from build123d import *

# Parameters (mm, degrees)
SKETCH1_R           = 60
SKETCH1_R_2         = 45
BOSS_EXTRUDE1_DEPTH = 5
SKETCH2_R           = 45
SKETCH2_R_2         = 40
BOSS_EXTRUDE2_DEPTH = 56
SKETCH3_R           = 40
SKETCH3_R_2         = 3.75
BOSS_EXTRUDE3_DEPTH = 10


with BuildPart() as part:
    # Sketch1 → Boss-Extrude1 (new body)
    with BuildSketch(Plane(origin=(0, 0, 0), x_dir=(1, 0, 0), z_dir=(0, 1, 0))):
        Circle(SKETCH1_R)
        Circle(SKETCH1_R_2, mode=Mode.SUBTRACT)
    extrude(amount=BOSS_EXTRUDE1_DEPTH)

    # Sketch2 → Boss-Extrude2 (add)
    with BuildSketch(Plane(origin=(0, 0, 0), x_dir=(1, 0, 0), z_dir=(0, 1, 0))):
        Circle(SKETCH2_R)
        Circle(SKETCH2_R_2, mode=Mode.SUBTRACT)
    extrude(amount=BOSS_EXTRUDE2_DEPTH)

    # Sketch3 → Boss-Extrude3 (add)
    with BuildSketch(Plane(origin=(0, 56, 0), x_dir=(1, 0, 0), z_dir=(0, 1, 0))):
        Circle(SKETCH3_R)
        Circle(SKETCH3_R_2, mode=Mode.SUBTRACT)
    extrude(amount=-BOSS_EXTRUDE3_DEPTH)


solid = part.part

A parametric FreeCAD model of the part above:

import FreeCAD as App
import Part
import Sketcher
from FreeCAD import Vector

doc = App.newDocument("Part")
body = doc.addObject("PartDesign::Body", "Body")

# Sketch on XZ plane
sketch1 = doc.addObject("Sketcher::SketchObject", "Sketch")
body.addObject(sketch1)
sketch1.AttachmentSupport = (doc.XZ_Plane, [""])
sketch1.MapMode = "FlatFace"
sketch1.addGeometry([
    Part.Circle(Vector(0, 0, 0), Vector(0, 0, 1), 60),
    Part.Circle(Vector(0, 0, 0), Vector(0, 0, 1), 45),
], False)
sketch1.addConstraint([
    Sketcher.Constraint("Coincident", 0, 3, -1, 1),
    Sketcher.Constraint("Coincident", 1, 3, -1, 1),
    Sketcher.Constraint("Diameter", 0, 120.0),
    Sketcher.Constraint("Diameter", 1, 90.0),
])
pad1 = doc.addObject("PartDesign::Pad", "Pad")
body.addObject(pad1)
pad1.Profile = sketch1
pad1.Length = 5
pad1.Reversed = True

# Sketch on XZ plane
sketch2 = doc.addObject("Sketcher::SketchObject", "Sketch001")
body.addObject(sketch2)
sketch2.AttachmentSupport = (doc.XZ_Plane, [""])
sketch2.MapMode = "FlatFace"
sketch2.addGeometry([
    Part.Circle(Vector(0, 0, 0), Vector(0, 0, 1), 45),
    Part.Circle(Vector(0, 0, 0), Vector(0, 0, 1), 40),
], False)
sketch2.addConstraint([
    Sketcher.Constraint("Coincident", 0, 3, -1, 1),
    Sketcher.Constraint("Coincident", 1, 3, -1, 1),
    Sketcher.Constraint("Diameter", 0, 90.0),
    Sketcher.Constraint("Diameter", 1, 80.0),
])
pad2 = doc.addObject("PartDesign::Pad", "Pad001")
body.addObject(pad2)
pad2.Profile = sketch2
pad2.Length = 56
pad2.Reversed = True

# Sketch on XZ plane
sketch3 = doc.addObject("Sketcher::SketchObject", "Sketch002")
body.addObject(sketch3)
sketch3.AttachmentSupport = (doc.XZ_Plane, [""])
sketch3.MapMode = "FlatFace"
sketch3.AttachmentOffset = App.Placement(Vector(0, 0, -56), App.Rotation())
sketch3.addGeometry([
    Part.Circle(Vector(0, 0, 0), Vector(0, 0, 1), 40),
    Part.Circle(Vector(0, 0, 0), Vector(0, 0, 1), 3.75),
], False)
sketch3.addConstraint([
    Sketcher.Constraint("Coincident", 0, 3, -1, 1),
    Sketcher.Constraint("Coincident", 1, 3, -1, 1),
    Sketcher.Constraint("Diameter", 0, 80.0),
    Sketcher.Constraint("Diameter", 1, 7.5),
])
pad3 = doc.addObject("PartDesign::Pad", "Pad002")
body.addObject(pad3)
pad3.Profile = sketch3
pad3.Length = 10

doc.recompute()
